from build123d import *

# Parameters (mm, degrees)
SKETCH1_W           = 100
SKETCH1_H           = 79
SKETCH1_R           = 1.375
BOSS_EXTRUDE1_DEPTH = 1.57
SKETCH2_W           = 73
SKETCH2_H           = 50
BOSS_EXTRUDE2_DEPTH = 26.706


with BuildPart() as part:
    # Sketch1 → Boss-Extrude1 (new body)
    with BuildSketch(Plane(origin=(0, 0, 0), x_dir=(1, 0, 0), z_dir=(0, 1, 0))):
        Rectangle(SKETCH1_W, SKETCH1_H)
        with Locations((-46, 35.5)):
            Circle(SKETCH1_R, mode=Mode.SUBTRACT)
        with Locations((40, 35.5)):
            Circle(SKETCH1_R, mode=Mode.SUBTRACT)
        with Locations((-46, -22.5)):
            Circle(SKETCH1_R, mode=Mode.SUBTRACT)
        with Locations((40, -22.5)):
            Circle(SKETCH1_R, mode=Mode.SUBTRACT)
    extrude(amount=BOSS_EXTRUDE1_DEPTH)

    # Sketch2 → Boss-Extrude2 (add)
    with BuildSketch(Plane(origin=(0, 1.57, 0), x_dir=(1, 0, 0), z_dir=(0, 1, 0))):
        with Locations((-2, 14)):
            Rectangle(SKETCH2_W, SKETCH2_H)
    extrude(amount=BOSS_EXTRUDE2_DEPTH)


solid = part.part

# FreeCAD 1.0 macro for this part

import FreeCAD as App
import Part
import Sketcher

V = App.Vector

doc = App.newDocument("Part")
params = doc.addObject("Spreadsheet::Sheet", "Params")
for row, (alias, value) in enumerate([
    ("sketch1_diameter", "2.75 mm"),
    ("sketch1_width", "100 mm"),
    ("sketch1_height", "79 mm"),
    ("pad1_length", "1.57 mm"),
    ("sketch2_width", "73 mm"),
    ("sketch2_height", "50 mm"),
    ("pad2_length", "26.706 mm"),
], start=1):
    params.set(f"A{row}", alias)
    params.set(f"B{row}", "=" + value)
    params.setAlias(f"B{row}", alias)

body = doc.addObject("PartDesign::Body", "Body")

# Sketch on XZ plane
sketch1 = body.newObject("Sketcher::SketchObject", "Sketch")
sketch1.AttachmentSupport = (doc.getObject("XZ_Plane"), [""])
sketch1.MapMode = "FlatFace"
sketch1.addGeometry(Part.LineSegment(V(-50, -39.5, 0), V(-50, 39.5, 0)), False)
sketch1.addGeometry(Part.LineSegment(V(-50, 39.5, 0), V(50, 39.5, 0)), False)
sketch1.addGeometry(Part.LineSegment(V(50, 39.5, 0), V(50, -39.5, 0)), False)
sketch1.addGeometry(Part.LineSegment(V(50, -39.5, 0), V(-50, -39.5, 0)), False)
sketch1.addGeometry(Part.Circle(V(-46, 22.5, 0), V(0, 0, 1), 1.375), False)
sketch1.addGeometry(Part.Circle(V(40, 22.5, 0), V(0, 0, 1), 1.375), False)
sketch1.addGeometry(Part.Circle(V(-46, -35.5, 0), V(0, 0, 1), 1.375), False)
sketch1.addGeometry(Part.Circle(V(40, -35.5, 0), V(0, 0, 1), 1.375), False)
sketch1.addConstraint(Sketcher.Constraint("Coincident", 0, 2, 1, 1))
sketch1.addConstraint(Sketcher.Constraint("Coincident", 1, 2, 2, 1))
sketch1.addConstraint(Sketcher.Constraint("Coincident", 2, 2, 3, 1))
sketch1.addConstraint(Sketcher.Constraint("Coincident", 3, 2, 0, 1))
sketch1.addConstraint(Sketcher.Constraint("Vertical", 0))
sketch1.addConstraint(Sketcher.Constraint("Horizontal", 1))
sketch1.addConstraint(Sketcher.Constraint("Vertical", 2))
sketch1.addConstraint(Sketcher.Constraint("Horizontal", 3))
sketch1.addConstraint(Sketcher.Constraint("Equal", 4, 5))
sketch1.addConstraint(Sketcher.Constraint("Equal", 5, 6))
sketch1.addConstraint(Sketcher.Constraint("Equal", 6, 7))
sketch1.addConstraint(Sketcher.Constraint("Symmetric", 0, 2, 2, 2, -1, 1))
sketch1.addConstraint(Sketcher.Constraint("Horizontal", 4, 3, 5, 3))
sketch1.addConstraint(Sketcher.Constraint("Horizontal", 6, 3, 7, 3))
sketch1.addConstraint(Sketcher.Constraint("Vertical", 4, 3, 6, 3))
sketch1.addConstraint(Sketcher.Constraint("Vertical", 5, 3, 7, 3))
sketch1.addConstraint(Sketcher.Constraint("Diameter", 4, 2.75))
sketch1.addConstraint(Sketcher.Constraint("DistanceX", 1, 1, 1, 2, 100.0))
sketch1.addConstraint(Sketcher.Constraint("DistanceY", 0, 1, 0, 2, 79.0))
sketch1.addConstraint(Sketcher.Constraint("DistanceX", 4, 3, -1, 1, 46.0))
sketch1.addConstraint(Sketcher.Constraint("DistanceX", -1, 1, 5, 3, 40.0))
sketch1.addConstraint(Sketcher.Constraint("DistanceY", 6, 3, 4, 3, 58.0))
sketch1.addConstraint(Sketcher.Constraint("DistanceY", 4, 3, 0, 2, 17.0))
sketch1.setExpression("Constraints[16]", "Params.sketch1_diameter")
sketch1.setExpression("Constraints[17]", "Params.sketch1_width")
sketch1.setExpression("Constraints[18]", "Params.sketch1_height")
pad1 = body.newObject("PartDesign::Pad", "Pad")
pad1.Profile = sketch1
pad1.setExpression("Length", "Params.pad1_length")
pad1.Reversed = True

# Sketch on XZ plane
sketch2 = body.newObject("Sketcher::SketchObject", "Sketch001")
sketch2.AttachmentSupport = (doc.getObject("XZ_Plane"), [""])
sketch2.MapMode = "FlatFace"
sketch2.AttachmentOffset = App.Placement(V(0, 0, -1.57), App.Rotation())
sketch2.addGeometry(Part.LineSegment(V(-38.5, -39, 0), V(-38.5, 11, 0)), False)
sketch2.addGeometry(Part.LineSegment(V(-38.5, 11, 0), V(34.5, 11, 0)), False)
sketch2.addGeometry(Part.LineSegment(V(34.5, 11, 0), V(34.5, -39, 0)), False)
sketch2.addGeometry(Part.LineSegment(V(34.5, -39, 0), V(-38.5, -39, 0)), False)
sketch2.addConstraint(Sketcher.Constraint("Coincident", 0, 2, 1, 1))
sketch2.addConstraint(Sketcher.Constraint("Coincident", 1, 2, 2, 1))
sketch2.addConstraint(Sketcher.Constraint("Coincident", 2, 2, 3, 1))
sketch2.addConstraint(Sketcher.Constraint("Coincident", 3, 2, 0, 1))
sketch2.addConstraint(Sketcher.Constraint("Vertical", 0))
sketch2.addConstraint(Sketcher.Constraint("Horizontal", 1))
sketch2.addConstraint(Sketcher.Constraint("Vertical", 2))
sketch2.addConstraint(Sketcher.Constraint("Horizontal", 3))
sketch2.addConstraint(Sketcher.Constraint("DistanceX", 1, 1, 1, 2, 73.0))
sketch2.addConstraint(Sketcher.Constraint("DistanceY", 0, 1, 0, 2, 50.0))
sketch2.addConstraint(Sketcher.Constraint("DistanceY", -1, 1, 0, 2, 11.0))
sketch2.addConstraint(Sketcher.Constraint("DistanceX", 0, 2, -1, 1, 38.5))
sketch2.setExpression("Constraints[8]", "Params.sketch2_width")
sketch2.setExpression("Constraints[9]", "Params.sketch2_height")
pad2 = body.newObject("PartDesign::Pad", "Pad001")
pad2.Profile = sketch2
pad2.setExpression("Length", "Params.pad2_length")
pad2.Reversed = True

doc.recompute()
